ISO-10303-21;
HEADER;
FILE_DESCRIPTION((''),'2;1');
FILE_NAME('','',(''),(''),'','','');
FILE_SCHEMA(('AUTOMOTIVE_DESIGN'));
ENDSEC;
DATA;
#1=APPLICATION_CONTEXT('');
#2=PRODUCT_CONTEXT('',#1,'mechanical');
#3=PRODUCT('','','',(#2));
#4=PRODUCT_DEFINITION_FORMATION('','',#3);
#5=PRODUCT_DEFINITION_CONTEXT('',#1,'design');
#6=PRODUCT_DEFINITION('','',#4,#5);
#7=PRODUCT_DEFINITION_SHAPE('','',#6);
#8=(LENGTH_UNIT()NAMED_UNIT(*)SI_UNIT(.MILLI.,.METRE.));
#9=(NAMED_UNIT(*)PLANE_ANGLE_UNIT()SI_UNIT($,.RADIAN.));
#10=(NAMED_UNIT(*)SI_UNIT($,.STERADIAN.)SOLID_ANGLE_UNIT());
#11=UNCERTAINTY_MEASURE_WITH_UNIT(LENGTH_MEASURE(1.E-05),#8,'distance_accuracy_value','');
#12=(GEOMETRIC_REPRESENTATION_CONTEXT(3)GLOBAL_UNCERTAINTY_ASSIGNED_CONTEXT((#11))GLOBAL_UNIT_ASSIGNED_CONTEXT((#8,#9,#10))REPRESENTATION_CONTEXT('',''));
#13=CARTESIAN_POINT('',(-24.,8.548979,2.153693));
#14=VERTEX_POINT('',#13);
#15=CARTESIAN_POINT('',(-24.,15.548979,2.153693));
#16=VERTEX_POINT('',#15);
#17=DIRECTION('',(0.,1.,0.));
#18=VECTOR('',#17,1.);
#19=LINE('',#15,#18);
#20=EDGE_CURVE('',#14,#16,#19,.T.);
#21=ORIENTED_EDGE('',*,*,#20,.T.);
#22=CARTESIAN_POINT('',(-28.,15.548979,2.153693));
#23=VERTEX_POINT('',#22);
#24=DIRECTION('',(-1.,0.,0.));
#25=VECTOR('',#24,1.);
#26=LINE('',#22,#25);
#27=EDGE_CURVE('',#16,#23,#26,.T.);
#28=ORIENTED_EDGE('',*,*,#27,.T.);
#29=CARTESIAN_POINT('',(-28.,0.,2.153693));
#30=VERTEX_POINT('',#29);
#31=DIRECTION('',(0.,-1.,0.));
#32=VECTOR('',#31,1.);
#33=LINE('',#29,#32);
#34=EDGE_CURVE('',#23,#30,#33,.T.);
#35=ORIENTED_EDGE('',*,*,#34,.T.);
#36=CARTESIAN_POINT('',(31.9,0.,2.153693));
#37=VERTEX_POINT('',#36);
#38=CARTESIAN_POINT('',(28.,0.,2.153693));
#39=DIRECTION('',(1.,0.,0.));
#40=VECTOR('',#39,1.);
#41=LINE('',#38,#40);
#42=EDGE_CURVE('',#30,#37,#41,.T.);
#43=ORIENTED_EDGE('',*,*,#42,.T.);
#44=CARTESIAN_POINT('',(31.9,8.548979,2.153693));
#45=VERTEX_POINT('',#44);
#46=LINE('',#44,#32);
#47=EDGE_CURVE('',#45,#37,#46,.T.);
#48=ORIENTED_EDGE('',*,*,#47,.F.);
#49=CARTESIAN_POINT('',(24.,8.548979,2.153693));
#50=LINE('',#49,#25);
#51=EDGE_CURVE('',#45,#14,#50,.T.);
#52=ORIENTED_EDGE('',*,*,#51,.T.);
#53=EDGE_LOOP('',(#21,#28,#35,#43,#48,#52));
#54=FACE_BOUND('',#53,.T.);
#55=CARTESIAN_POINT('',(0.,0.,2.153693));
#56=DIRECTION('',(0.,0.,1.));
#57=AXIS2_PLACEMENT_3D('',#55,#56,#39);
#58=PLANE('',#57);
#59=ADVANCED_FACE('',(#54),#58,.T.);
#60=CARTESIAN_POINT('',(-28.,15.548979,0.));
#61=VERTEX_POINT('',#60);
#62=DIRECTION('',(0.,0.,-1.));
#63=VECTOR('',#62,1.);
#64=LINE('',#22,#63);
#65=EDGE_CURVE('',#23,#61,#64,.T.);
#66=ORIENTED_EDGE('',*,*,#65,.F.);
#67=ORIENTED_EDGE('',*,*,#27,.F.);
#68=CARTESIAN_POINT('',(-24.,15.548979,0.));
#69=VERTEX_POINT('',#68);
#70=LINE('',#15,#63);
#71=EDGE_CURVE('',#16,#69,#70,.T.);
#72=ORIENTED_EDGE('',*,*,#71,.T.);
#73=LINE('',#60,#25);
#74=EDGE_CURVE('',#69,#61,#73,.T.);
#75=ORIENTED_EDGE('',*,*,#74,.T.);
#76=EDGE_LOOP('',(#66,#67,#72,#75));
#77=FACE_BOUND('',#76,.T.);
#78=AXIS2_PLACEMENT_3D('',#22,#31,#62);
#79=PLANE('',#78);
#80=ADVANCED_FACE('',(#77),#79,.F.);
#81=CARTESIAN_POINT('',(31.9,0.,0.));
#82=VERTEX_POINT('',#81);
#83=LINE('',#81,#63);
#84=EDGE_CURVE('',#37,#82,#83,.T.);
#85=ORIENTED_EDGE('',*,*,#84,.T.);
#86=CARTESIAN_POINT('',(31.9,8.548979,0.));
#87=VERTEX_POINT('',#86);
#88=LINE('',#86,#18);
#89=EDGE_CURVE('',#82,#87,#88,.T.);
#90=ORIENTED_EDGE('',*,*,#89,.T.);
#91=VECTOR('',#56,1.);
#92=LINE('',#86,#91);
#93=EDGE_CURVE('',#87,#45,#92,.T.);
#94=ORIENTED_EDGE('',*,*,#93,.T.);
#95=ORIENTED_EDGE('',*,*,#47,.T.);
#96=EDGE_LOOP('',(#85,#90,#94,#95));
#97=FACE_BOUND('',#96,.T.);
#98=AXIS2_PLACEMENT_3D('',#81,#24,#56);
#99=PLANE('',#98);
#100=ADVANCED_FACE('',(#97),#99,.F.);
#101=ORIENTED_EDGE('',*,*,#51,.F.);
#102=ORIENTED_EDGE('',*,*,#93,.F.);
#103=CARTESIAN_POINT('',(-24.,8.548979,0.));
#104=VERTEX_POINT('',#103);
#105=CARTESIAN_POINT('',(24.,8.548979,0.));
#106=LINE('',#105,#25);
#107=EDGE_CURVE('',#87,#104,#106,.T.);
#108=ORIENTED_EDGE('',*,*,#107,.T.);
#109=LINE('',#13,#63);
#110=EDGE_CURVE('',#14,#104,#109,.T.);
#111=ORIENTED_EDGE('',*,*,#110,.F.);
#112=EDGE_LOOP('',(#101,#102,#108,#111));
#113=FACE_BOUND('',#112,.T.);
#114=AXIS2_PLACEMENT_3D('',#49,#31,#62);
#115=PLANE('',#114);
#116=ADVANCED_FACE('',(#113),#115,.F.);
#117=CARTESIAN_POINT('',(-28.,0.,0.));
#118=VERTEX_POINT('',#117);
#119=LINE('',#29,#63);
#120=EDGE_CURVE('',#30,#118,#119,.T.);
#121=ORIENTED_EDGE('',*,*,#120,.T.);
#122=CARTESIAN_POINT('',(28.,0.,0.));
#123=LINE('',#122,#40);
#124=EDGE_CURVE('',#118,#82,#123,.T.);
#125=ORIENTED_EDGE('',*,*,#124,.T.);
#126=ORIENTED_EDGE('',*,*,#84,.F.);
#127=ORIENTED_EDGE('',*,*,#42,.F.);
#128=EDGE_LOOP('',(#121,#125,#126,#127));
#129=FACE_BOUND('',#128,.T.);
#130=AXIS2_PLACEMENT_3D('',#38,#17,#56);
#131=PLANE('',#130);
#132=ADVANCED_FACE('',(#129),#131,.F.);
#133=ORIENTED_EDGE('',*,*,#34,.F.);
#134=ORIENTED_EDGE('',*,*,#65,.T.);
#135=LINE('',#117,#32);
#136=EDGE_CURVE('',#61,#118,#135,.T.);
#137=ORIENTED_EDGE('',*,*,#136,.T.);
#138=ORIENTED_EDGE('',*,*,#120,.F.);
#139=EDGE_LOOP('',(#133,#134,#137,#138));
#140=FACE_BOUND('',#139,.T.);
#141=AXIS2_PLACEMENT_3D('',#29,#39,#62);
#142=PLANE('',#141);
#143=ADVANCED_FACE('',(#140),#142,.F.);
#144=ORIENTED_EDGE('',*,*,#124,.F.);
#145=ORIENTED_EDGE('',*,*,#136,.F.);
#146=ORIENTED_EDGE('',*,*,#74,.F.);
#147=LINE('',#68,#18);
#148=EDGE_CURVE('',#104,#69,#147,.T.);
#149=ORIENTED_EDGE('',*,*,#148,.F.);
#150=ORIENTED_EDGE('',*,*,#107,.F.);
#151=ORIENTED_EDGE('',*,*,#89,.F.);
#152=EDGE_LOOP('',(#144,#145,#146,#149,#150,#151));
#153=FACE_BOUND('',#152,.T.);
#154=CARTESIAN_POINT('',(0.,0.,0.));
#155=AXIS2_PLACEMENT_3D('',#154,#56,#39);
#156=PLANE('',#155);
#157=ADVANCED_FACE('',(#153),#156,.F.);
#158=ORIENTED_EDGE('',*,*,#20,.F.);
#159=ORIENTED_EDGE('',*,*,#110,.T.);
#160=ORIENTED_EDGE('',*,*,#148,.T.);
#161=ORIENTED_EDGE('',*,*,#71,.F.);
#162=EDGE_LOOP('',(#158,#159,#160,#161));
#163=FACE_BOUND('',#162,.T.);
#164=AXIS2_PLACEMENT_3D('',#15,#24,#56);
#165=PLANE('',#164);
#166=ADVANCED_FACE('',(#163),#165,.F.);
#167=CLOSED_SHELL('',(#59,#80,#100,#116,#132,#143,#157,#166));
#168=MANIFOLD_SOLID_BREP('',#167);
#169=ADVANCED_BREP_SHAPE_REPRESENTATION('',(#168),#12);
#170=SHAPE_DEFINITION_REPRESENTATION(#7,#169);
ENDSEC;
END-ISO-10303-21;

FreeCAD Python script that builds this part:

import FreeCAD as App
import Part
import Sketcher

V = App.Vector
Q = App.Units.Quantity

doc = App.newDocument("Part")
body = doc.addObject("PartDesign::Body", "Body")

# Sketch on XY plane
sketch1 = body.newObject("Sketcher::SketchObject", "Sketch")
sketch1.AttachmentSupport = (doc.getObject("XY_Plane"), [""])
sketch1.MapMode = "FlatFace"
sketch1.addGeometry([
    Part.LineSegment(V(-28, 0, 0), V(28, 0, 0)),  # 0
    Part.LineSegment(V(28, 0, 0), V(28, 15.548979, 0)),  # 1
    Part.LineSegment(V(28, 15.548979, 0), V(24, 15.548979, 0)),  # 2
    Part.LineSegment(V(24, 15.548979, 0), V(24, 8.548979, 0)),  # 3
    Part.LineSegment(V(24, 8.548979, 0), V(-24, 8.548979, 0)),  # 4
    Part.LineSegment(V(-24, 8.548979, 0), V(-24, 15.548979, 0)),  # 5
    Part.LineSegment(V(-24, 15.548979, 0), V(-28, 15.548979, 0)),  # 6
    Part.LineSegment(V(-28, 15.548979, 0), V(-28, 0, 0)),  # 7
], False)
sketch1.addConstraint([
    Sketcher.Constraint("Coincident", 0, 2, 1, 1),
    Sketcher.Constraint("Coincident", 1, 2, 2, 1),
    Sketcher.Constraint("Coincident", 2, 2, 3, 1),
    Sketcher.Constraint("Coincident", 3, 2, 4, 1),
    Sketcher.Constraint("Coincident", 4, 2, 5, 1),
    Sketcher.Constraint("Coincident", 5, 2, 6, 1),
    Sketcher.Constraint("Coincident", 6, 2, 7, 1),
    Sketcher.Constraint("Coincident", 7, 2, 0, 1),
    Sketcher.Constraint("Horizontal", 0),
    Sketcher.Constraint("Vertical", 1),
    Sketcher.Constraint("Horizontal", 2),
    Sketcher.Constraint("Vertical", 3),
    Sketcher.Constraint("Horizontal", 4),
    Sketcher.Constraint("Vertical", 5),
    Sketcher.Constraint("Horizontal", 6),
    Sketcher.Constraint("Vertical", 7),
    Sketcher.Constraint("Symmetric", 0, 2, 7, 2, -1, 1),
    Sketcher.Constraint("Symmetric", 2, 2, 5, 2, -2),
    Sketcher.Constraint("DistanceX", 0, 1, 0, 2, Q("56 mm")),
    Sketcher.Constraint("DistanceX", 2, 2, 2, 1, Q("4 mm")),
    Sketcher.Constraint("DistanceY", 3, 2, 3, 1, Q("7 mm")),
    Sketcher.Constraint("DistanceY", 1, 1, 1, 2, Q("15.548979 mm")),
])
pad1 = body.newObject("PartDesign::Pad", "Pad")
pad1.Profile = sketch1
pad1.Length = 2.153693

# Sketch on YZ plane
sketch2 = body.newObject("Sketcher::SketchObject", "Sketch001")
sketch2.AttachmentSupport = (doc.getObject("YZ_Plane"), [""])
sketch2.MapMode = "FlatFace"
sketch2.AttachmentOffset = App.Placement(V(0, 0, 24), App.Rotation())
sketch2.addGeometry([
    Part.LineSegment(V(15.548979, 0, 0), V(8.548979, 0, 0)),
    Part.LineSegment(V(8.548979, 0, 0), V(8.548979, 2.153693, 0)),
    Part.LineSegment(V(8.548979, 2.153693, 0), V(15.548979, 2.153693, 0)),
    Part.LineSegment(V(15.548979, 2.153693, 0), V(15.548979, 0, 0)),
], False)
sketch2.addConstraint([
    Sketcher.Constraint("Coincident", 0, 2, 1, 1),
    Sketcher.Constraint("Coincident", 1, 2, 2, 1),
    Sketcher.Constraint("Coincident", 2, 2, 3, 1),
    Sketcher.Constraint("Coincident", 3, 2, 0, 1),
    Sketcher.Constraint("Horizontal", 0),
    Sketcher.Constraint("Vertical", 1),
    Sketcher.Constraint("Horizontal", 2),
    Sketcher.Constraint("Vertical", 3),
    Sketcher.Constraint("PointOnObject", 0, 2, -1),
    Sketcher.Constraint("DistanceX", 0, 2, 0, 1, Q("7 mm")),
    Sketcher.Constraint("DistanceY", 1, 1, 1, 2, Q("2.153693 mm")),
    Sketcher.Constraint("DistanceX", -1, 1, 0, 2, Q("8.548979 mm")),
])
pocket1 = body.newObject("PartDesign::Pocket", "Pocket")
pocket1.Profile = sketch2
pocket1.Type = "UpToFirst"
pocket1.Reversed = True

# Sketch on YZ plane
sketch3 = body.newObject("Sketcher::SketchObject", "Sketch002")
sketch3.AttachmentSupport = (doc.getObject("YZ_Plane"), [""])
sketch3.MapMode = "FlatFace"
sketch3.AttachmentOffset = App.Placement(V(0, 0, 28), App.Rotation())
sketch3.addGeometry([
    Part.LineSegment(V(8.548979, 2.153693, 0), V(0, 2.153693, 0)),
    Part.LineSegment(V(0, 2.153693, 0), V(0, 0, 0)),
    Part.LineSegment(V(0, 0, 0), V(8.548979, 0, 0)),
    Part.LineSegment(V(8.548979, 0, 0), V(8.548979, 2.153693, 0)),
], False)
sketch3.addConstraint([
    Sketcher.Constraint("Coincident", 0, 2, 1, 1),
    Sketcher.Constraint("Coincident", 1, 2, 2, 1),
    Sketcher.Constraint("Coincident", 2, 2, 3, 1),
    Sketcher.Constraint("Coincident", 3, 2, 0, 1),
    Sketcher.Constraint("Horizontal", 0),
    Sketcher.Constraint("Vertical", 1),
    Sketcher.Constraint("Horizontal", 2),
    Sketcher.Constraint("Vertical", 3),
    Sketcher.Constraint("Coincident", 1, 2, -1, 1),
    Sketcher.Constraint("DistanceX", 0, 2, 0, 1, Q("8.548979 mm")),
    Sketcher.Constraint("DistanceY", 1, 2, 1, 1, Q("2.153693 mm")),
])
pad2 = body.newObject("PartDesign::Pad", "Pad001")
pad2.Profile = sketch3
pad2.Length = 3.9

doc.recompute()
